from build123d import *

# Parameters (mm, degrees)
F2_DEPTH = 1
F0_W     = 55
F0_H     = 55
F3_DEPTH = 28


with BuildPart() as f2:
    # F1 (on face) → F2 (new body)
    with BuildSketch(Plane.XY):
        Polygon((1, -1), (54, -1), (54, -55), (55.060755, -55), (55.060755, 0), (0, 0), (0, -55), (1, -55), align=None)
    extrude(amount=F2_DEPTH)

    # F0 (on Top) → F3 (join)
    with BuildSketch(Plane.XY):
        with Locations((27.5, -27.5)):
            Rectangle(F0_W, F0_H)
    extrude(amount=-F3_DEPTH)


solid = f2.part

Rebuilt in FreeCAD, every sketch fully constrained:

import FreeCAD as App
import Part
import Sketcher


def add_polygon(sketch, points):
    """Adds a closed chain of lines whose ends are joined by coincident constraints."""
    first, n = sketch.GeometryCount, len(points)
    for a, b in zip(points, points[1:] + points[:1]):
        sketch.addGeometry(Part.LineSegment(App.Vector(*a, 0), App.Vector(*b, 0)), False)
    for i in range(n):
        sketch.addConstraint(Sketcher.Constraint("Coincident", first + i, 2, first + (i + 1) % n, 1))

doc = App.newDocument("Part")
body = doc.addObject("PartDesign::Body", "Body")

sketch1 = body.newObject("Sketcher::SketchObject", "Sketch")
sketch1.AttachmentSupport = (doc.getObject("XY_Plane"), [""])
sketch1.MapMode = "FlatFace"
add_polygon(sketch1, [(1, -1), (54, -1), (54, -55), (55.1, -55), (55.1, 0), (0, 0), (0, -55), (1, -55)])
sketch1.addConstraint([
    Sketcher.Constraint("Horizontal", 0),
    Sketcher.Constraint("Vertical", 1),
    Sketcher.Constraint("Horizontal", 2),
    Sketcher.Constraint("Vertical", 3),
    Sketcher.Constraint("Horizontal", 4),
    Sketcher.Constraint("Vertical", 5),
    Sketcher.Constraint("Horizontal", 6),
    Sketcher.Constraint("Vertical", 7),
    Sketcher.Constraint("Coincident", 4, 2, -1, 1),
    Sketcher.Constraint("Horizontal", 2, 2, 5, 2),
    Sketcher.Constraint("DistanceX", 0, 1, 0, 2, 53.0),
    Sketcher.Constraint("DistanceX", 6, 1, 6, 2, 1.0),
    Sketcher.Constraint("DistanceY", 1, 2, 1, 1, 54.0),
    Sketcher.Constraint("DistanceY", 3, 1, 3, 2, 55.0),
    Sketcher.Constraint("DistanceX", 2, 1, 2, 2, 1.060755),
])
pad1 = body.newObject("PartDesign::Pad", "Pad")
pad1.Profile = sketch1
pad1.Length = 1

sketch2 = body.newObject("Sketcher::SketchObject", "Sketch001")
sketch2.AttachmentSupport = (doc.getObject("XY_Plane"), [""])
sketch2.MapMode = "FlatFace"
add_polygon(sketch2, [(0, 0), (0, -55), (55, -55), (55, 0)])
sketch2.addConstraint([
    Sketcher.Constraint("Vertical", 0),
    Sketcher.Constraint("Horizontal", 1),
    Sketcher.Constraint("Vertical", 2),
    Sketcher.Constraint("Horizontal", 3),
    Sketcher.Constraint("Coincident", 3, 2, -1, 1),
    Sketcher.Constraint("Equal", 3, 0),
    Sketcher.Constraint("DistanceX", 1, 1, 1, 2, 55.0),
])
pad2 = body.newObject("PartDesign::Pad", "Pad001")
pad2.Profile = sketch2
pad2.Length = 28
pad2.Reversed = True

doc.recompute()
